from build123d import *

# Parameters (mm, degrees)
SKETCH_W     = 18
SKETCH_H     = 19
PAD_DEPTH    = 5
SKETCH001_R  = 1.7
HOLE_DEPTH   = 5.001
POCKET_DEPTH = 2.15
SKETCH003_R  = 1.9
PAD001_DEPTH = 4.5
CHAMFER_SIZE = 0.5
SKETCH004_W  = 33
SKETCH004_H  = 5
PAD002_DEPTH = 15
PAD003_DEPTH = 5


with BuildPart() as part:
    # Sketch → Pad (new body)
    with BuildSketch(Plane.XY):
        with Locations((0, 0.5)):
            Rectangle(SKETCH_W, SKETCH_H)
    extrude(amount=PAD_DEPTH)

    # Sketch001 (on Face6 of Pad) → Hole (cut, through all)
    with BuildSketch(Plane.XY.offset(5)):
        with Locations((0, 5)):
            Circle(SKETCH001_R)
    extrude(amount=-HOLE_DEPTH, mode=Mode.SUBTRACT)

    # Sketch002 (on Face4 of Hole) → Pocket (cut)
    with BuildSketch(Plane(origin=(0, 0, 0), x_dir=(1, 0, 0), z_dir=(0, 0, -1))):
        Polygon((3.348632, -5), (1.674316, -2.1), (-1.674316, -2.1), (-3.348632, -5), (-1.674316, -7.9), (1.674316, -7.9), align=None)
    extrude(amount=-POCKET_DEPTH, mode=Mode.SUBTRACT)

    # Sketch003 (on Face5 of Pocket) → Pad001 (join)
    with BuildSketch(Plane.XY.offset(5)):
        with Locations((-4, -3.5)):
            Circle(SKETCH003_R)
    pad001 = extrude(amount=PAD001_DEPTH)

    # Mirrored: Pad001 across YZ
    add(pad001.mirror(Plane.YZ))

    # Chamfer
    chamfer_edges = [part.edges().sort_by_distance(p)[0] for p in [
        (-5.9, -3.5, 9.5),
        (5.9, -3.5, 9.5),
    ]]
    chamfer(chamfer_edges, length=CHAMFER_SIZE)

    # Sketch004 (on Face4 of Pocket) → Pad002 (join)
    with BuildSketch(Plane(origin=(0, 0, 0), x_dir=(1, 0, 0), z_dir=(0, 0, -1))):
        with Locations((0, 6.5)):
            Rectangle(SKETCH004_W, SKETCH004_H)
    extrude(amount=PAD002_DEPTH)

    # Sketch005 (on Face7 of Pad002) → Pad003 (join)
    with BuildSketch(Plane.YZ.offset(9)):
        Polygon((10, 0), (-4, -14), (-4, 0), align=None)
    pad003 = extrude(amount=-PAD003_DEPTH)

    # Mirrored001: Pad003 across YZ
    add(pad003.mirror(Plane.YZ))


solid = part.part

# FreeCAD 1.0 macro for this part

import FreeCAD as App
import Part
import Sketcher

V = App.Vector
Q = App.Units.Quantity


def edges_at(feature, points):
    """Names of the edges that pass closest to the given points."""
    edges = feature.Shape.Edges
    near = lambda p: min(range(len(edges)), key=lambda i: edges[i].distToShape(Part.Vertex(*p))[0])
    return sorted({f"Edge{near(p) + 1}" for p in points})

doc = App.newDocument("Part")
body = doc.addObject("PartDesign::Body", "Body")

# Sketch on XY plane
sketch1 = body.newObject("Sketcher::SketchObject", "Sketch")
sketch1.AttachmentSupport = (doc.getObject("XY_Plane"), [""])
sketch1.MapMode = "FlatFace"
sketch1.addGeometry(Part.LineSegment(V(-9, 10, 0), V(-9, -9, 0)), False)
sketch1.addGeometry(Part.LineSegment(V(-9, -9, 0), V(9, -9, 0)), False)
sketch1.addGeometry(Part.LineSegment(V(9, -9, 0), V(9, 10, 0)), False)
sketch1.addGeometry(Part.LineSegment(V(9, 10, 0), V(-9, 10, 0)), False)
sketch1.addConstraint(Sketcher.Constraint("Coincident", 0, 2, 1, 1))
sketch1.addConstraint(Sketcher.Constraint("Coincident", 1, 2, 2, 1))
sketch1.addConstraint(Sketcher.Constraint("Coincident", 2, 2, 3, 1))
sketch1.addConstraint(Sketcher.Constraint("Coincident", 3, 2, 0, 1))
sketch1.addConstraint(Sketcher.Constraint("Vertical", 0))
sketch1.addConstraint(Sketcher.Constraint("Horizontal", 1))
sketch1.addConstraint(Sketcher.Constraint("Vertical", 2))
sketch1.addConstraint(Sketcher.Constraint("Horizontal", 3))
sketch1.addConstraint(Sketcher.Constraint("DistanceX", 1, 1, 1, 2, 18.0))
sketch1.addConstraint(Sketcher.Constraint("DistanceY", 0, 2, 0, 1, 19.0))
sketch1.addConstraint(Sketcher.Constraint("DistanceX", 0, 2, -1, 1, 9.0))
sketch1.addConstraint(Sketcher.Constraint("DistanceY", 0, 2, -1, 1, 9.0))
pad1 = body.newObject("PartDesign::Pad", "Pad")
pad1.Profile = sketch1
pad1.Length = 5

# Sketch on XY plane
sketch2 = body.newObject("Sketcher::SketchObject", "Sketch001")
sketch2.AttachmentSupport = (doc.getObject("XY_Plane"), [""])
sketch2.MapMode = "FlatFace"
sketch2.AttachmentOffset = App.Placement(V(0, 0, 5), App.Rotation())
sketch2.addGeometry(Part.Circle(V(0, 5, 0), V(0, 0, 1), 1.7), False)
sketch2.addConstraint(Sketcher.Constraint("PointOnObject", 0, 3, -2))
sketch2.addConstraint(Sketcher.Constraint("Diameter", 0, 3.4))
sketch2.addConstraint(Sketcher.Constraint("DistanceY", -1, 1, 0, 3, 5.0))
pocket1 = body.newObject("PartDesign::Pocket", "Pocket")
pocket1.Profile = sketch2
pocket1.Type = "ThroughAll"

# Sketch on XY plane
sketch3 = body.newObject("Sketcher::SketchObject", "Sketch002")
sketch3.AttachmentSupport = (doc.getObject("XY_Plane"), [""])
sketch3.MapMode = "FlatFace"
sketch3.addGeometry(Part.LineSegment(V(3.348632, 5, 0), V(1.674316, 2.1, 0)), False)
sketch3.addGeometry(Part.LineSegment(V(1.674316, 2.1, 0), V(-1.674316, 2.1, 0)), False)
sketch3.addGeometry(Part.LineSegment(V(-1.674316, 2.1, 0), V(-3.348632, 5, 0)), False)
sketch3.addGeometry(Part.LineSegment(V(-3.348632, 5, 0), V(-1.674316, 7.9, 0)), False)
sketch3.addGeometry(Part.LineSegment(V(-1.674316, 7.9, 0), V(1.674316, 7.9, 0)), False)
sketch3.addGeometry(Part.LineSegment(V(1.674316, 7.9, 0), V(3.348632, 5, 0)), False)
sketch3.addConstraint(Sketcher.Constraint("Coincident", 0, 2, 1, 1))
sketch3.addConstraint(Sketcher.Constraint("Coincident", 1, 2, 2, 1))
sketch3.addConstraint(Sketcher.Constraint("Coincident", 2, 2, 3, 1))
sketch3.addConstraint(Sketcher.Constraint("Coincident", 3, 2, 4, 1))
sketch3.addConstraint(Sketcher.Constraint("Coincident", 4, 2, 5, 1))
sketch3.addConstraint(Sketcher.Constraint("Coincident", 5, 2, 0, 1))
sketch3.addConstraint(Sketcher.Constraint("Horizontal", 1))
sketch3.addConstraint(Sketcher.Constraint("Horizontal", 4))
sketch3.addConstraint(Sketcher.Constraint("Symmetric", 2, 2, 5, 2, -2))
sketch3.addConstraint(Sketcher.Constraint("Parallel", 0, 3))
sketch3.addConstraint(Sketcher.Constraint("Parallel", 2, 5))
sketch3.addConstraint(Sketcher.Constraint("Vertical", 1, 2, 3, 2))
sketch3.addConstraint(Sketcher.Constraint("Vertical", 0, 2, 4, 2))
sketch3.addConstraint(Sketcher.Constraint("Angle", 0, Q("-120.000003 deg")))
sketch3.addConstraint(Sketcher.Constraint("DistanceY", -1, 1, 2, 2, 5.0))
sketch3.addConstraint(Sketcher.Constraint("DistanceY", -1, 1, 0, 2, 2.1))
sketch3.addConstraint(Sketcher.Constraint("DistanceX", 1, 2, 1, 1, 3.348632))
pocket2 = body.newObject("PartDesign::Pocket", "Pocket001")
pocket2.Profile = sketch3
pocket2.Length = 2.15
pocket2.Reversed = True

# Sketch on XY plane
sketch4 = body.newObject("Sketcher::SketchObject", "Sketch003")
sketch4.AttachmentSupport = (doc.getObject("XY_Plane"), [""])
sketch4.MapMode = "FlatFace"
sketch4.AttachmentOffset = App.Placement(V(0, 0, 5), App.Rotation())
sketch4.addGeometry(Part.Circle(V(-4, -3.5, 0), V(0, 0, 1), 1.9), False)
sketch4.addConstraint(Sketcher.Constraint("Diameter", 0, 3.8))
sketch4.addConstraint(Sketcher.Constraint("DistanceX", 0, 3, -1, 1, 4.0))
sketch4.addConstraint(Sketcher.Constraint("DistanceY", 0, 3, -1, 1, 3.5))
pad2 = body.newObject("PartDesign::Pad", "Pad001")
pad2.Profile = sketch4
pad2.Length = 4.5
doc.recompute()

mirrored = body.newObject("PartDesign::Mirrored", "Mirrored")
mirrored.Originals = [pad2]
mirrored.MirrorPlane = (doc.getObject("YZ_Plane"), [""])
body.Tip = mirrored
doc.recompute()

chamfer = body.newObject("PartDesign::Chamfer", "Chamfer")
chamfer.Base = (mirrored, edges_at(mirrored, [(-5.9, -3.5, 9.5), (5.9, -3.5, 9.5)]))
chamfer.Size = 0.5

# Sketch on XY plane
sketch5 = body.newObject("Sketcher::SketchObject", "Sketch004")
sketch5.AttachmentSupport = (doc.getObject("XY_Plane"), [""])
sketch5.MapMode = "FlatFace"
sketch5.addGeometry(Part.LineSegment(V(-16.5, -9, 0), V(-16.5, -4, 0)), False)
sketch5.addGeometry(Part.LineSegment(V(-16.5, -4, 0), V(16.5, -4, 0)), False)
sketch5.addGeometry(Part.LineSegment(V(16.5, -4, 0), V(16.5, -9, 0)), False)
sketch5.addGeometry(Part.LineSegment(V(16.5, -9, 0), V(-16.5, -9, 0)), False)
sketch5.addConstraint(Sketcher.Constraint("Coincident", 0, 2, 1, 1))
sketch5.addConstraint(Sketcher.Constraint("Coincident", 1, 2, 2, 1))
sketch5.addConstraint(Sketcher.Constraint("Coincident", 2, 2, 3, 1))
sketch5.addConstraint(Sketcher.Constraint("Coincident", 3, 2, 0, 1))
sketch5.addConstraint(Sketcher.Constraint("Vertical", 0))
sketch5.addConstraint(Sketcher.Constraint("Horizontal", 1))
sketch5.addConstraint(Sketcher.Constraint("Vertical", 2))
sketch5.addConstraint(Sketcher.Constraint("Horizontal", 3))
sketch5.addConstraint(Sketcher.Constraint("DistanceX", 1, 1, 1, 2, 33.0))
sketch5.addConstraint(Sketcher.Constraint("DistanceY", 0, 1, 0, 2, 5.0))
sketch5.addConstraint(Sketcher.Constraint("DistanceY", 0, 2, -1, 1, 4.0))
sketch5.addConstraint(Sketcher.Constraint("DistanceX", 0, 2, -1, 1, 16.5))
pad3 = body.newObject("PartDesign::Pad", "Pad002")
pad3.Profile = sketch5
pad3.Length = 15
pad3.Reversed = True

# Sketch on YZ plane
sketch6 = body.newObject("Sketcher::SketchObject", "Sketch005")
sketch6.AttachmentSupport = (doc.getObject("YZ_Plane"), [""])
sketch6.MapMode = "FlatFace"
sketch6.AttachmentOffset = App.Placement(V(0, 0, 9), App.Rotation())
sketch6.addGeometry(Part.LineSegment(V(-4, -14, 0), V(10, 0, 0)), False)
sketch6.addGeometry(Part.LineSegment(V(10, 0, 0), V(-4, 0, 0)), False)
sketch6.addGeometry(Part.LineSegment(V(-4, 0, 0), V(-4, -14, 0)), False)
sketch6.addConstraint(Sketcher.Constraint("Coincident", 0, 2, 1, 1))
sketch6.addConstraint(Sketcher.Constraint("Coincident", 1, 2, 2, 1))
sketch6.addConstraint(Sketcher.Constraint("Coincident", 2, 2, 0, 1))
sketch6.addConstraint(Sketcher.Constraint("Horizontal", 1))
sketch6.addConstraint(Sketcher.Constraint("Vertical", 2))
sketch6.addConstraint(Sketcher.Constraint("PointOnObject", 0, 2, -1))
sketch6.addConstraint(Sketcher.Constraint("Equal", 1, 2))
sketch6.addConstraint(Sketcher.Constraint("DistanceX", 1, 2, 1, 1, 14.0))
sketch6.addConstraint(Sketcher.Constraint("DistanceX", -1, 1, 0, 2, 10.0))
pad4 = body.newObject("PartDesign::Pad", "Pad003")
pad4.Profile = sketch6
pad4.Length = 5
pad4.Reversed = True
doc.recompute()

mirrored2 = body.newObject("PartDesign::Mirrored", "Mirrored001")
mirrored2.Originals = [pad4]
mirrored2.MirrorPlane = (doc.getObject("YZ_Plane"), [""])
body.Tip = mirrored2

doc.recompute()
